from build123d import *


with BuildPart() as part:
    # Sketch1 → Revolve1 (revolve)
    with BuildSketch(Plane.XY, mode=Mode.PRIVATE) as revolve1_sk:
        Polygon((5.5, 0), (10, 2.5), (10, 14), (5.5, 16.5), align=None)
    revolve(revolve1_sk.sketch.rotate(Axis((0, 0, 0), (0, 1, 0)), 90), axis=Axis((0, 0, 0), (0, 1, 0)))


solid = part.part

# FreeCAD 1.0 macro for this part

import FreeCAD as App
import Part
import Sketcher


def add_polygon(sketch, points):
    """Adds a closed chain of lines whose ends are joined by coincident constraints."""
    first, n = sketch.GeometryCount, len(points)
    for a, b in zip(points, points[1:] + points[:1]):
        sketch.addGeometry(Part.LineSegment(App.Vector(*a, 0), App.Vector(*b, 0)), False)
    for i in range(n):
        sketch.addConstraint(Sketcher.Constraint("Coincident", first + i, 2, first + (i + 1) % n, 1))

doc = App.newDocument("Part")
params = doc.addObject("Spreadsheet::Sheet", "Params")
for row, (alias, value) in enumerate([
    ("sketch1_height", "11.5 mm"),
    ("sketch1_height2", "16.5 mm"),
    ("revolution_angle", "360 deg"),
], start=1):
    params.set(f"A{row}", alias)
    params.set(f"B{row}", "=" + value)
    params.setAlias(f"B{row}", alias)

body = doc.addObject("PartDesign::Body", "Body")

# Sketch on XY plane
sketch1 = body.newObject("Sketcher::SketchObject", "Sketch")
sketch1.AttachmentSupport = (doc.getObject("XY_Plane"), [""])
sketch1.MapMode = "FlatFace"
add_polygon(sketch1, [(6, 0), (10, 2), (10, 14), (6, 16)])  # lines 0-3
sketch1.addConstraint([
    Sketcher.Constraint("Vertical", 1),
    Sketcher.Constraint("Vertical", 3),
    Sketcher.Constraint("PointOnObject", 3, 2, -1),
    Sketcher.Constraint("Equal", 0, 2),
    Sketcher.Constraint("DistanceY", 1, 1, 1, 2, 11.5),
    Sketcher.Constraint("DistanceY", 3, 2, 3, 1, 16.5),
    Sketcher.Constraint("DistanceX", -1, 1, 0, 2, 10.0),
    Sketcher.Constraint("DistanceX", -1, 1, 2, 2, 5.5),
])
sketch1.setExpression("Constraints[8]", "Params.sketch1_height")
sketch1.setExpression("Constraints[9]", "Params.sketch1_height2")
revolution = body.newObject("PartDesign::Revolution", "Revolution")
revolution.Profile = sketch1
revolution.ReferenceAxis = (sketch1, ["V_Axis"])
revolution.setExpression("Angle", "Params.revolution_angle")

doc.recompute()
